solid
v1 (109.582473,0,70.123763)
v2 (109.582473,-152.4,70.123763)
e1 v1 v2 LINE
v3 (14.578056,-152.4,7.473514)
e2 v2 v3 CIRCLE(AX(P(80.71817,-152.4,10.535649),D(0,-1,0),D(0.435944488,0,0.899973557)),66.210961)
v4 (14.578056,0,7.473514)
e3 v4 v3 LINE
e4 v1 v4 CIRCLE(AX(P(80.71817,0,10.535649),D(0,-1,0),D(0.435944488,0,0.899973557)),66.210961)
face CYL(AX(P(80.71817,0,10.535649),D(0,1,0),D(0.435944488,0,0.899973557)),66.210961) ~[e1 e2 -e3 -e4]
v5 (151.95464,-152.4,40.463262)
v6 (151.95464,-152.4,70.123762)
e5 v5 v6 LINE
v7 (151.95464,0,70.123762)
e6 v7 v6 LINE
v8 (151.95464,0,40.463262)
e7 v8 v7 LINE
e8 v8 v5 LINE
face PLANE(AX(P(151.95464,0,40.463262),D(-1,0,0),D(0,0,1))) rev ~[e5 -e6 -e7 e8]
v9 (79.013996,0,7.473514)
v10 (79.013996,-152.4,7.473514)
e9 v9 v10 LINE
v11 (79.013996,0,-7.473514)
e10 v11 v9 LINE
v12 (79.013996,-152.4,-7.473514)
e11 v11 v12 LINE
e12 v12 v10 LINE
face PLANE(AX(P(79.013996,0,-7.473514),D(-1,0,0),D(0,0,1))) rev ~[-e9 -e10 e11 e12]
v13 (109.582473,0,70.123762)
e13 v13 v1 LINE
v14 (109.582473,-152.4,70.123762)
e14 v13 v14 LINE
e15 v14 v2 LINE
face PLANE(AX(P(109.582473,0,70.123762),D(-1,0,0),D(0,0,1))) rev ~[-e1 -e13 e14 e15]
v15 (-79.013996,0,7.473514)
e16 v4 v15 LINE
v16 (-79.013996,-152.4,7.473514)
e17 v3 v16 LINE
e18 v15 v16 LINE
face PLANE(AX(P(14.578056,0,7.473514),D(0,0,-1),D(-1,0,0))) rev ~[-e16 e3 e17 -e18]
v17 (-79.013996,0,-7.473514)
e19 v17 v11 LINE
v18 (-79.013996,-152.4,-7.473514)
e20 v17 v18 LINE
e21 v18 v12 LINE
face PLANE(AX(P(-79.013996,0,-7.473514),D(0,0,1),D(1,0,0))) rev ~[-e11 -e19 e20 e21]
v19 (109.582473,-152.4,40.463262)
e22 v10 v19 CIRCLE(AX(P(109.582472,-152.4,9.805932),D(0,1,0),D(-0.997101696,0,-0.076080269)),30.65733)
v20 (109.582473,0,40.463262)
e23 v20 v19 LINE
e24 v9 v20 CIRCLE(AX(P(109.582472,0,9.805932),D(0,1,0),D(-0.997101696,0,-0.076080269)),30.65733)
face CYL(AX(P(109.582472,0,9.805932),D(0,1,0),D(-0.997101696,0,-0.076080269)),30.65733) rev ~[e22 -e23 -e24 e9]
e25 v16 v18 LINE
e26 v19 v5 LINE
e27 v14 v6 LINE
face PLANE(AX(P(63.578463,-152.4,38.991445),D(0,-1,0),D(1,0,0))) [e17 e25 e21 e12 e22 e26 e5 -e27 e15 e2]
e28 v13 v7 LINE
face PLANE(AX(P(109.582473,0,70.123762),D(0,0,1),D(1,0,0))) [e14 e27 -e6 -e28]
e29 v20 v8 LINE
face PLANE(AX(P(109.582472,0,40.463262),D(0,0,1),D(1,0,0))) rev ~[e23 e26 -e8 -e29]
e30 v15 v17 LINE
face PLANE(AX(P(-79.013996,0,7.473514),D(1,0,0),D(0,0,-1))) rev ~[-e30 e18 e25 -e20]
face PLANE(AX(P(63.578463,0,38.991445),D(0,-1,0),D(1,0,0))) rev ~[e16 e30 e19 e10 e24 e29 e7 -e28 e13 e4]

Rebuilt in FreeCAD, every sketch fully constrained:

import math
import FreeCAD as App
import Part
import Sketcher
Q = App.Units.Quantity

doc = App.newDocument("Part")
body = doc.addObject("PartDesign::Body", "Body")

# Sketch on XZ plane
sketch1 = body.newObject("Sketcher::SketchObject", "Sketch")
sketch1.AttachmentSupport = (doc.getObject("XZ_Plane"), [""])
sketch1.MapMode = "FlatFace"
sketch1.addGeometry([
    Part.LineSegment(App.Vector(109.582473, 70.123763, 0), App.Vector(109.582473, 70.123762, 0)),  # 0
    Part.ArcOfCircle(Part.Circle(App.Vector(80.71817, 10.535649, 0), App.Vector(0, 0, 1), 66.210961), math.radians(64.154592), math.radians(182.65077)),  # 1
    Part.LineSegment(App.Vector(14.578056, 7.473514, 0), App.Vector(-79.013996, 7.473514, 0)),  # 2
    Part.LineSegment(App.Vector(-79.013996, 7.473514, 0), App.Vector(-79.013996, -7.473514, 0)),  # 3
    Part.LineSegment(App.Vector(-79.013996, -7.473514, 0), App.Vector(79.013996, -7.473514, 0)),  # 4
    Part.LineSegment(App.Vector(79.013996, -7.473514, 0), App.Vector(79.013996, 7.473514, 0)),  # 5
    Part.ArcOfCircle(Part.Circle(App.Vector(109.582472, 9.805932, 0), App.Vector(0, 0, 1), 30.65733), math.radians(89.999999), math.radians(184.363294)),  # 6
    Part.LineSegment(App.Vector(109.582472, 40.463262, 0), App.Vector(151.95464, 40.463262, 0)),  # 7
    Part.LineSegment(App.Vector(151.95464, 40.463262, 0), App.Vector(151.95464, 70.123762, 0)),  # 8
    Part.LineSegment(App.Vector(151.95464, 70.123762, 0), App.Vector(109.582473, 70.123762, 0)),  # 9
], False)
sketch1.addConstraint([
    Sketcher.Constraint("Coincident", 0, 1, 1, 1),
    Sketcher.Constraint("Coincident", 1, 2, 2, 1),
    Sketcher.Constraint("Coincident", 2, 2, 3, 1),
    Sketcher.Constraint("Coincident", 3, 2, 4, 1),
    Sketcher.Constraint("Coincident", 4, 2, 5, 1),
    Sketcher.Constraint("Coincident", 5, 2, 6, 2),
    Sketcher.Constraint("Tangent", 6, 1, 7, 1),
    Sketcher.Constraint("Coincident", 7, 2, 8, 1),
    Sketcher.Constraint("Coincident", 8, 2, 9, 1),
    Sketcher.Constraint("Coincident", 9, 2, 0, 2),
    Sketcher.Constraint("Horizontal", 0),
    Sketcher.Constraint("Horizontal", 2),
    Sketcher.Constraint("Vertical", 3),
    Sketcher.Constraint("Horizontal", 4),
    Sketcher.Constraint("Vertical", 5),
    Sketcher.Constraint("Horizontal", 7),
    Sketcher.Constraint("Vertical", 8),
    Sketcher.Constraint("Horizontal", 9),
    Sketcher.Constraint("Symmetric", 2, 2, 4, 2, -1, 1),
    Sketcher.Constraint("Horizontal", 2, 2, 5, 2),
    Sketcher.Constraint("Vertical", 6, 3, 0, 1),
    Sketcher.Constraint("Vertical", 6, 1, 9, 2),
    Sketcher.Constraint("Radius", 1, 66.210961),
    Sketcher.Constraint("Radius", 6, 30.65733),
    Sketcher.Constraint("DistanceY", 8, 1, 8, 2, 29.660501),
    Sketcher.Constraint("DistanceX", 2, 2, 2, 1, 93.592052),
    Sketcher.Constraint("DistanceX", 4, 1, 4, 2, 158.027992),
    Sketcher.Constraint("DistanceX", 7, 1, 7, 2, 42.372167),
    Sketcher.Constraint("DistanceY", 3, 2, 3, 1, 14.947028),
    Sketcher.Constraint("DistanceX", -1, 1, 1, 3, 80.71817),
])
pad1 = body.newObject("PartDesign::Pad", "Pad")
pad1.Profile = sketch1
pad1.Length = Q("6 in")

doc.recompute()
